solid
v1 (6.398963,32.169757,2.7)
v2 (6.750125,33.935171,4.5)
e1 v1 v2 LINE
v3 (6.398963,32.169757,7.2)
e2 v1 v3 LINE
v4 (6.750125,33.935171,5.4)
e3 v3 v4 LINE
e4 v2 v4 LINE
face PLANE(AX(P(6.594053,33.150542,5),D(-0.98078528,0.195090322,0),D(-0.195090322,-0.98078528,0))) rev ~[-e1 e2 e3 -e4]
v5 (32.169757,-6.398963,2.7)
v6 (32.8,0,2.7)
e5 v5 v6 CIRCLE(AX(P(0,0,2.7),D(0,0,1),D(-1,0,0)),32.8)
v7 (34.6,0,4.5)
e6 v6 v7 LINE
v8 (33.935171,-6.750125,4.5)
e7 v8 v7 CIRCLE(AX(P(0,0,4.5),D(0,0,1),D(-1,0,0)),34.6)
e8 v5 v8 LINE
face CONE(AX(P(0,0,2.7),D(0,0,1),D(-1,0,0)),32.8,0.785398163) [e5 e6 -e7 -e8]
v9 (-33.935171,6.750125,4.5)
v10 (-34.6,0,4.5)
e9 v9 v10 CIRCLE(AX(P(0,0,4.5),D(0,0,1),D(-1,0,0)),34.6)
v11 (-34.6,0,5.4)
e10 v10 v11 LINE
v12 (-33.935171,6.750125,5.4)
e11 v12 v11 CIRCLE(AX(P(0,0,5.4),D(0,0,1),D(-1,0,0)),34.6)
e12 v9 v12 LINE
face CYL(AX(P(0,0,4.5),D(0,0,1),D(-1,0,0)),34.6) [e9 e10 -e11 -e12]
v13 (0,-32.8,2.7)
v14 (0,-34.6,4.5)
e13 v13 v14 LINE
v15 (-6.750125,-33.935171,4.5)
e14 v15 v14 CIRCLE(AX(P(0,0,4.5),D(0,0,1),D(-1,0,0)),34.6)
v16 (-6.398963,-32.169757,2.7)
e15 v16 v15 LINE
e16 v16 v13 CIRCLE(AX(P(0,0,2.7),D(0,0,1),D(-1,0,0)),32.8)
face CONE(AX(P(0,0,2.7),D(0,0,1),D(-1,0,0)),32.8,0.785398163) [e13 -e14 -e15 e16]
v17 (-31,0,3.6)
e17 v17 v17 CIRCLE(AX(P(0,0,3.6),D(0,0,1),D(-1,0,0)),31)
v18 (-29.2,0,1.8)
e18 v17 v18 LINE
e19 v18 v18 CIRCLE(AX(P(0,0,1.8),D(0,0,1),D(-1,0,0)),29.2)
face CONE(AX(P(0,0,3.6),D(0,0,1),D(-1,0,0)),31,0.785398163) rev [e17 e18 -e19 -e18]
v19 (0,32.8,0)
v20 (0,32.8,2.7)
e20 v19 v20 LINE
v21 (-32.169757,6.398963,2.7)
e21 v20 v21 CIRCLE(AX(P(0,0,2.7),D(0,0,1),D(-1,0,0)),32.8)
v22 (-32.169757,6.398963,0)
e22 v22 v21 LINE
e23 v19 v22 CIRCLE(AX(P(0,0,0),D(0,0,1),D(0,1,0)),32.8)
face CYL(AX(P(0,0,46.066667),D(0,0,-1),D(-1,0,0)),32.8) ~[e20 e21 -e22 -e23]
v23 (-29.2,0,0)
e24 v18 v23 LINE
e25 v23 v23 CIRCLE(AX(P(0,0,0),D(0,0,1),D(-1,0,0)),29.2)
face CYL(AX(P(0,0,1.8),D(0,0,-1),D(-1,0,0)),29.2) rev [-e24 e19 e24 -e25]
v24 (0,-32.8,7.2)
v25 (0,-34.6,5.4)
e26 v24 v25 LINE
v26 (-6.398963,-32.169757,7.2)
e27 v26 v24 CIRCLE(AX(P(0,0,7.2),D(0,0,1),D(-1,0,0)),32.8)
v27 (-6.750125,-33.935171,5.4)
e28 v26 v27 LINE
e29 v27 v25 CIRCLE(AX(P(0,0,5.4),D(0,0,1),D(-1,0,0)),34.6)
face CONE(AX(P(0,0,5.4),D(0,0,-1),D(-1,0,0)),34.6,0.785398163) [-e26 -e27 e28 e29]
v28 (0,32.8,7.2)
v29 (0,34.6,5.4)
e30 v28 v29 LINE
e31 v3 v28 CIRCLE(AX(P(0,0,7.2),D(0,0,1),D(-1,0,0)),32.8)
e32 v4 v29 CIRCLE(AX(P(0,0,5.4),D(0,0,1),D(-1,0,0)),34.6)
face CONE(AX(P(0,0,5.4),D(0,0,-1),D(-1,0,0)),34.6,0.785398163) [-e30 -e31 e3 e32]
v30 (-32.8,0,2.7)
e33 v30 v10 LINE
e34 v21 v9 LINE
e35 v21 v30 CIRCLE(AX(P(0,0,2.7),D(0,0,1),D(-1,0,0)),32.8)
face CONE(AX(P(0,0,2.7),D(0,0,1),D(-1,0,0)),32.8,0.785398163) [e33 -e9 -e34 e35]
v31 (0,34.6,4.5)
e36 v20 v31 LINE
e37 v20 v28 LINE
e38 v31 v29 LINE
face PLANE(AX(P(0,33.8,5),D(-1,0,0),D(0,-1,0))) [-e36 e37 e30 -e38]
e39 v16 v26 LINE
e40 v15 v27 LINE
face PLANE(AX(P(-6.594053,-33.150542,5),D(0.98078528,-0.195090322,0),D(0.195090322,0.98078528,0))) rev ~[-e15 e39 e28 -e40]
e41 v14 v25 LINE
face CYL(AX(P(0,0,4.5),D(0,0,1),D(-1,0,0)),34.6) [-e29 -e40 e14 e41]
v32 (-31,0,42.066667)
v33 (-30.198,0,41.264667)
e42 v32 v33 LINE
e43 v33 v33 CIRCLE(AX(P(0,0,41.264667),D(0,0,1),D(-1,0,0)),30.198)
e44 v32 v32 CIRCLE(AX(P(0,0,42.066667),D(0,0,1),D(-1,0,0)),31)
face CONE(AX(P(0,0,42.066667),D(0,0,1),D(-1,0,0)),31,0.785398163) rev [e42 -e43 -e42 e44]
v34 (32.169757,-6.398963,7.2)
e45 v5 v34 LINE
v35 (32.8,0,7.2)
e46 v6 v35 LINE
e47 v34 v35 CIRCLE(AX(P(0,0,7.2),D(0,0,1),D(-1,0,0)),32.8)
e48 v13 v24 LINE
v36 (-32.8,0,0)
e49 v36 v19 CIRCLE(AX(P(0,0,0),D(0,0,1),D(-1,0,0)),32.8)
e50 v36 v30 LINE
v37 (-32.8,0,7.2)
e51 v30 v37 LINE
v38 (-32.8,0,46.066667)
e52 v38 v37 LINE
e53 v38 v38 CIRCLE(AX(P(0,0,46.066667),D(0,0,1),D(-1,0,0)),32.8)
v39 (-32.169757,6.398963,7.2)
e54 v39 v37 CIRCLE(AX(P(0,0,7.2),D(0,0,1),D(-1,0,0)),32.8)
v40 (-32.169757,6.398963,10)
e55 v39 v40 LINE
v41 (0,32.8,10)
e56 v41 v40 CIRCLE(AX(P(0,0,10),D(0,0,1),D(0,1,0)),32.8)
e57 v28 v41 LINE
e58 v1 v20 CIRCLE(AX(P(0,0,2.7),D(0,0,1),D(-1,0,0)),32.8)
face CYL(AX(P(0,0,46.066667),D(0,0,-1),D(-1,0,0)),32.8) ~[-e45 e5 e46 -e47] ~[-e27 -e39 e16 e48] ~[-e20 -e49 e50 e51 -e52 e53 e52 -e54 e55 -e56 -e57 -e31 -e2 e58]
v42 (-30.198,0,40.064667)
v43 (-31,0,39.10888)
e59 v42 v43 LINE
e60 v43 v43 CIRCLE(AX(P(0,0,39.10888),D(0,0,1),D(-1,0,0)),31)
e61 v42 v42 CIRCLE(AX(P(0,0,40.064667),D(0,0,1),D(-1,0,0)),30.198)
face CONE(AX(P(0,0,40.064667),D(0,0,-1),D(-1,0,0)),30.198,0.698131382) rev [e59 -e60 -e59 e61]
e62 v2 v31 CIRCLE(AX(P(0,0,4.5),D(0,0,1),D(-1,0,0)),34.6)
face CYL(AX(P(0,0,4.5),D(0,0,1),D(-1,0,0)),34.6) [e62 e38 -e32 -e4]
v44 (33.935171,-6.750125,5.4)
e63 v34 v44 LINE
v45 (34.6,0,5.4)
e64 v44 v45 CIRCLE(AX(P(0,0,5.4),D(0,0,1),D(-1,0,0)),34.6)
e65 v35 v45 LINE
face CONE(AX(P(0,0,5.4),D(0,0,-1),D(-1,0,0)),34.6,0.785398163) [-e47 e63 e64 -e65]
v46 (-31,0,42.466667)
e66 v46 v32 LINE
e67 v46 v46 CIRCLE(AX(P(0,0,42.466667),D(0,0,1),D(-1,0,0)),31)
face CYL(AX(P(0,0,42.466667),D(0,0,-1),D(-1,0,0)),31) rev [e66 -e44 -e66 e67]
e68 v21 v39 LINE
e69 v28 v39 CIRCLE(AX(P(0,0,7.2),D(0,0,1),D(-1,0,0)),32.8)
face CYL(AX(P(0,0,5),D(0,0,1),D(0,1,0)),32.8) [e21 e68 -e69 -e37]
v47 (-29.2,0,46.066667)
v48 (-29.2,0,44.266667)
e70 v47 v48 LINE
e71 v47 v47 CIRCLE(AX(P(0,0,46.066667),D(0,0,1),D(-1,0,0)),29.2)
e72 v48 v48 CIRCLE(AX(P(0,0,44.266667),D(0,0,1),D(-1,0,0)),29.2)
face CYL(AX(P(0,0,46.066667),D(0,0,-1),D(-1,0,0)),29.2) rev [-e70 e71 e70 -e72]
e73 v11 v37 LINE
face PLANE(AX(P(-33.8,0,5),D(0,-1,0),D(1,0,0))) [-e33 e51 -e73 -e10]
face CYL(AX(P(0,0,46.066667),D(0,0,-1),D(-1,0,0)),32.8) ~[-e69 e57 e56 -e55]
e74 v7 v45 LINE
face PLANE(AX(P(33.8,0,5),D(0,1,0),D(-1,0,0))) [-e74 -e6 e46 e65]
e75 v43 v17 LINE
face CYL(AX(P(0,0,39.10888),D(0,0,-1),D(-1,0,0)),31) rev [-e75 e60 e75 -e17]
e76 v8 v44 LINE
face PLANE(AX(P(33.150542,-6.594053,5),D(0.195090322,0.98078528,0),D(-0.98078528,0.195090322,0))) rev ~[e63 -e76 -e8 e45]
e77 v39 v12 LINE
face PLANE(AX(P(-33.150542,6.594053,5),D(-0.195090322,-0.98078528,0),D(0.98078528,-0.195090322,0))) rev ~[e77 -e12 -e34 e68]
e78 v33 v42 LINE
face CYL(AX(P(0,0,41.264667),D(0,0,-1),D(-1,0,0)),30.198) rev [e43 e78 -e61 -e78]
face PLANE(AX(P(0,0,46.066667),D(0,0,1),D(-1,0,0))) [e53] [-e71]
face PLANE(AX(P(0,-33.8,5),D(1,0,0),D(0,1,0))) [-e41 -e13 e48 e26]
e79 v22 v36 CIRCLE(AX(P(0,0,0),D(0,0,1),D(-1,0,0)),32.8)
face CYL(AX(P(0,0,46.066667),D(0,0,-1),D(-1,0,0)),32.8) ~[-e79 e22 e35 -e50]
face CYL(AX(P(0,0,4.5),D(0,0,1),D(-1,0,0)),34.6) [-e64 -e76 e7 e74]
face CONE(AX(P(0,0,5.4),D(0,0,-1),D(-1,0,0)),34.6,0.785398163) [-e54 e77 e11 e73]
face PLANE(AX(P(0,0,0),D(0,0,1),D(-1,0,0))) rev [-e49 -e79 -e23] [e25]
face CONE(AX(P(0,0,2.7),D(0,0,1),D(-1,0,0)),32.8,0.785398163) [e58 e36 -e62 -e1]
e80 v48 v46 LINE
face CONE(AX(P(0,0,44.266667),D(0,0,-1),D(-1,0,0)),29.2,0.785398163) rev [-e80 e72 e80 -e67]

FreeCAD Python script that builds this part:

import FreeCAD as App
import Part
import Sketcher
Q = App.Units.Quantity

doc = App.newDocument("Part")
body = doc.addObject("PartDesign::Body", "Body")

sketch1 = body.newObject("Sketcher::SketchObject", "Sketch")
sketch1.AttachmentSupport = (doc.getObject("XZ_Plane"), [""])
sketch1.MapMode = "FlatFace"
sketch1.addGeometry([
    Part.LineSegment(App.Vector(-29.2, 46.066667, 0), App.Vector(-32.8, 46.066667, 0)),
    Part.LineSegment(App.Vector(-32.8, 46.066667, 0), App.Vector(-32.8, 7.2, 0)),
    Part.LineSegment(App.Vector(-32.8, 7.2, 0), App.Vector(-34.6, 5.4, 0)),
    Part.LineSegment(App.Vector(-34.6, 5.4, 0), App.Vector(-34.6, 4.5, 0)),
    Part.LineSegment(App.Vector(-34.6, 4.5, 0), App.Vector(-32.8, 2.7, 0)),
    Part.LineSegment(App.Vector(-32.8, 2.7, 0), App.Vector(-32.8, 0, 0)),
    Part.LineSegment(App.Vector(-32.8, 0, 0), App.Vector(-29.2, 0, 0)),
    Part.LineSegment(App.Vector(-29.2, 0, 0), App.Vector(-29.2, 1.8, 0)),
    Part.LineSegment(App.Vector(-29.2, 1.8, 0), App.Vector(-31, 3.6, 0)),
    Part.LineSegment(App.Vector(-31, 3.6, 0), App.Vector(-31, 39.10888, 0)),
    Part.LineSegment(App.Vector(-31, 39.10888, 0), App.Vector(-30.198, 40.064667, 0)),
    Part.LineSegment(App.Vector(-30.198, 40.064667, 0), App.Vector(-30.198, 41.264667, 0)),
    Part.LineSegment(App.Vector(-30.198, 41.264667, 0), App.Vector(-31, 42.066667, 0)),
    Part.LineSegment(App.Vector(-31, 42.066667, 0), App.Vector(-31, 42.466667, 0)),
    Part.LineSegment(App.Vector(-31, 42.466667, 0), App.Vector(-29.2, 44.266667, 0)),
    Part.LineSegment(App.Vector(-29.2, 44.266667, 0), App.Vector(-29.2, 46.066667, 0)),
], False)
sketch1.addConstraint([
    Sketcher.Constraint("Coincident", 0, 2, 1, 1),
    Sketcher.Constraint("Coincident", 1, 2, 2, 1),
    Sketcher.Constraint("Coincident", 2, 2, 3, 1),
    Sketcher.Constraint("Coincident", 3, 2, 4, 1),
    Sketcher.Constraint("Coincident", 4, 2, 5, 1),
    Sketcher.Constraint("Coincident", 5, 2, 6, 1),
    Sketcher.Constraint("Coincident", 6, 2, 7, 1),
    Sketcher.Constraint("Coincident", 7, 2, 8, 1),
    Sketcher.Constraint("Coincident", 8, 2, 9, 1),
    Sketcher.Constraint("Coincident", 9, 2, 10, 1),
    Sketcher.Constraint("Coincident", 10, 2, 11, 1),
    Sketcher.Constraint("Coincident", 11, 2, 12, 1),
    Sketcher.Constraint("Coincident", 12, 2, 13, 1),
    Sketcher.Constraint("Coincident", 13, 2, 14, 1),
    Sketcher.Constraint("Coincident", 14, 2, 15, 1),
    Sketcher.Constraint("Coincident", 15, 2, 0, 1),
    Sketcher.Constraint("Horizontal", 0),
    Sketcher.Constraint("Vertical", 1),
    Sketcher.Constraint("Vertical", 3),
    Sketcher.Constraint("Vertical", 5),
    Sketcher.Constraint("Horizontal", 6),
    Sketcher.Constraint("Vertical", 7),
    Sketcher.Constraint("Vertical", 9),
    Sketcher.Constraint("Vertical", 11),
    Sketcher.Constraint("Vertical", 13),
    Sketcher.Constraint("Vertical", 15),
    Sketcher.Constraint("PointOnObject", 5, 2, -1),
    Sketcher.Constraint("Perpendicular", 2, 4),
    Sketcher.Constraint("Parallel", 4, 8),
    Sketcher.Constraint("Parallel", 8, 12),
    Sketcher.Constraint("Perpendicular", 12, 14),
    Sketcher.Constraint("Vertical", 1, 2, 4, 2),
    Sketcher.Constraint("Vertical", 9, 2, 12, 2),
    Sketcher.Constraint("Vertical", 7, 2, 14, 2),
    Sketcher.Constraint("Equal", 7, 15),
    Sketcher.Constraint("Equal", 2, 4),
    Sketcher.Constraint("Equal", 4, 8),
    Sketcher.Constraint("Angle", 10, Q("50.000018 deg")),
    Sketcher.Constraint("DistanceX", 0, 2, 0, 1, Q("3.6 mm")),
    Sketcher.Constraint("DistanceY", 3, 2, 3, 1, Q("0.9 mm")),
    Sketcher.Constraint("DistanceY", 5, 2, 5, 1, Q("2.7 mm")),
    Sketcher.Constraint("DistanceY", 7, 1, 7, 2, Q("1.8 mm")),
    Sketcher.Constraint("DistanceY", 11, 1, 11, 2, Q("1.2 mm")),
    Sketcher.Constraint("DistanceY", 13, 1, 13, 2, Q("0.4 mm")),
    Sketcher.Constraint("DistanceX", 8, 2, -1, 1, Q("31 mm")),
    Sketcher.Constraint("DistanceY", 12, 2, 0, 2, Q("4 mm")),
    Sketcher.Constraint("DistanceX", 10, 2, -1, 1, Q("30.198 mm")),
    Sketcher.Constraint("DistanceY", 9, 1, 9, 2, Q("35.50888 mm")),
])
revolution = body.newObject("PartDesign::Revolution", "Revolution")
revolution.Profile = sketch1
revolution.ReferenceAxis = (sketch1, ["V_Axis"])
revolution.Angle = 360

sketch2 = body.newObject("Sketcher::SketchObject", "Sketch001")
sketch2.AttachmentSupport = (doc.getObject("XZ_Plane"), [""])
sketch2.MapMode = "FlatFace"
sketch2.addGeometry([
    Part.LineSegment(App.Vector(-34.8, 10, 0), App.Vector(-34.8, 0, 0)),
    Part.LineSegment(App.Vector(-34.8, 0, 0), App.Vector(-32.8, 0, 0)),
    Part.LineSegment(App.Vector(-32.8, 0, 0), App.Vector(-32.8, 10, 0)),
    Part.LineSegment(App.Vector(-32.8, 10, 0), App.Vector(-34.8, 10, 0)),
], False)
sketch2.addConstraint([
    Sketcher.Constraint("Coincident", 0, 2, 1, 1),
    Sketcher.Constraint("Coincident", 1, 2, 2, 1),
    Sketcher.Constraint("Coincident", 2, 2, 3, 1),
    Sketcher.Constraint("Coincident", 3, 2, 0, 1),
    Sketcher.Constraint("Vertical", 0),
    Sketcher.Constraint("Horizontal", 1),
    Sketcher.Constraint("Vertical", 2),
    Sketcher.Constraint("Horizontal", 3),
    Sketcher.Constraint("PointOnObject", 0, 2, -1),
    Sketcher.Constraint("DistanceX", 1, 1, 1, 2, Q("2 mm")),
    Sketcher.Constraint("DistanceY", 0, 2, 0, 1, Q("10 mm")),
    Sketcher.Constraint("DistanceX", 0, 2, -1, 1, Q("34.8 mm")),
])
groove = body.newObject("PartDesign::Groove", "Groove")
groove.Profile = sketch2
groove.ReferenceAxis = (sketch2, ["V_Axis"])
groove.Angle = 78.75
doc.recompute()

polarpattern = body.newObject("PartDesign::PolarPattern", "PolarPattern")
polarpattern.Originals = [groove]
polarpattern.Axis = (doc.getObject("Z_Axis"), [""])
polarpattern.Angle = 360
polarpattern.Occurrences = 4
body.Tip = polarpattern

doc.recompute()
